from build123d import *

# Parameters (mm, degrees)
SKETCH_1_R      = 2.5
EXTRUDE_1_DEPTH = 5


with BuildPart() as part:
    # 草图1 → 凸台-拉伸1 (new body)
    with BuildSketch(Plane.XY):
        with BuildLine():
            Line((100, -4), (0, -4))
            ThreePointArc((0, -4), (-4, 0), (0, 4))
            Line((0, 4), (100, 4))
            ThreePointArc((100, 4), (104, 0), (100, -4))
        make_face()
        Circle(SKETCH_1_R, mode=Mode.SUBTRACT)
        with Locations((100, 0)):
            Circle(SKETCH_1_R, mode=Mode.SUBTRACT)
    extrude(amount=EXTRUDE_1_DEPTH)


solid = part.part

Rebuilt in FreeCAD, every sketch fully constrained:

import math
import FreeCAD as App
import Part
import Sketcher

V = App.Vector
Q = App.Units.Quantity

doc = App.newDocument("Part")
body = doc.addObject("PartDesign::Body", "Body")

# Sketch on XY plane
sketch1 = doc.addObject("Sketcher::SketchObject", "Sketch")
body.addObject(sketch1)
sketch1.AttachmentSupport = (doc.XY_Plane, [""])
sketch1.MapMode = "FlatFace"
sketch1.addGeometry(Part.LineSegment(V(0, -4, 0), V(100, -4, 0)), False)
sketch1.addGeometry(Part.ArcOfCircle(Part.Circle(V(100, 0, 0), V(0, 0, 1), 4), math.radians(-90), math.radians(90)), False)
sketch1.addGeometry(Part.LineSegment(V(100, 4, 0), V(0, 4, 0)), False)
sketch1.addGeometry(Part.ArcOfCircle(Part.Circle(V(0, 0, 0), V(0, 0, 1), 4), math.radians(90), math.radians(270)), False)
sketch1.addGeometry(Part.Circle(V(100, 0, 0), V(0, 0, 1), 2.5), False)
sketch1.addGeometry(Part.Circle(V(0, 0, 0), V(0, 0, 1), 2.5), False)
sketch1.addConstraint(Sketcher.Constraint("Tangent", 0, 2, 1, 1))
sketch1.addConstraint(Sketcher.Constraint("Tangent", 1, 2, 2, 1))
sketch1.addConstraint(Sketcher.Constraint("Tangent", 2, 2, 3, 1))
sketch1.addConstraint(Sketcher.Constraint("Tangent", 3, 2, 0, 1))
sketch1.addConstraint(Sketcher.Constraint("Horizontal", 0))
sketch1.addConstraint(Sketcher.Constraint("Horizontal", 2))
sketch1.addConstraint(Sketcher.Constraint("Coincident", 3, 3, -1, 1))
sketch1.addConstraint(Sketcher.Constraint("Coincident", 5, 3, -1, 1))
sketch1.addConstraint(Sketcher.Constraint("Coincident", 4, 3, 1, 3))
sketch1.addConstraint(Sketcher.Constraint("Equal", 4, 5))
sketch1.addConstraint(Sketcher.Constraint("Diameter", 4, Q("5 mm")))
sketch1.addConstraint(Sketcher.Constraint("Radius", 1, Q("4 mm")))
sketch1.addConstraint(Sketcher.Constraint("DistanceX", 0, 1, 0, 2, Q("100 mm")))
pad1 = doc.addObject("PartDesign::Pad", "Pad")
body.addObject(pad1)
pad1.Profile = sketch1
pad1.Length = 5

doc.recompute()
